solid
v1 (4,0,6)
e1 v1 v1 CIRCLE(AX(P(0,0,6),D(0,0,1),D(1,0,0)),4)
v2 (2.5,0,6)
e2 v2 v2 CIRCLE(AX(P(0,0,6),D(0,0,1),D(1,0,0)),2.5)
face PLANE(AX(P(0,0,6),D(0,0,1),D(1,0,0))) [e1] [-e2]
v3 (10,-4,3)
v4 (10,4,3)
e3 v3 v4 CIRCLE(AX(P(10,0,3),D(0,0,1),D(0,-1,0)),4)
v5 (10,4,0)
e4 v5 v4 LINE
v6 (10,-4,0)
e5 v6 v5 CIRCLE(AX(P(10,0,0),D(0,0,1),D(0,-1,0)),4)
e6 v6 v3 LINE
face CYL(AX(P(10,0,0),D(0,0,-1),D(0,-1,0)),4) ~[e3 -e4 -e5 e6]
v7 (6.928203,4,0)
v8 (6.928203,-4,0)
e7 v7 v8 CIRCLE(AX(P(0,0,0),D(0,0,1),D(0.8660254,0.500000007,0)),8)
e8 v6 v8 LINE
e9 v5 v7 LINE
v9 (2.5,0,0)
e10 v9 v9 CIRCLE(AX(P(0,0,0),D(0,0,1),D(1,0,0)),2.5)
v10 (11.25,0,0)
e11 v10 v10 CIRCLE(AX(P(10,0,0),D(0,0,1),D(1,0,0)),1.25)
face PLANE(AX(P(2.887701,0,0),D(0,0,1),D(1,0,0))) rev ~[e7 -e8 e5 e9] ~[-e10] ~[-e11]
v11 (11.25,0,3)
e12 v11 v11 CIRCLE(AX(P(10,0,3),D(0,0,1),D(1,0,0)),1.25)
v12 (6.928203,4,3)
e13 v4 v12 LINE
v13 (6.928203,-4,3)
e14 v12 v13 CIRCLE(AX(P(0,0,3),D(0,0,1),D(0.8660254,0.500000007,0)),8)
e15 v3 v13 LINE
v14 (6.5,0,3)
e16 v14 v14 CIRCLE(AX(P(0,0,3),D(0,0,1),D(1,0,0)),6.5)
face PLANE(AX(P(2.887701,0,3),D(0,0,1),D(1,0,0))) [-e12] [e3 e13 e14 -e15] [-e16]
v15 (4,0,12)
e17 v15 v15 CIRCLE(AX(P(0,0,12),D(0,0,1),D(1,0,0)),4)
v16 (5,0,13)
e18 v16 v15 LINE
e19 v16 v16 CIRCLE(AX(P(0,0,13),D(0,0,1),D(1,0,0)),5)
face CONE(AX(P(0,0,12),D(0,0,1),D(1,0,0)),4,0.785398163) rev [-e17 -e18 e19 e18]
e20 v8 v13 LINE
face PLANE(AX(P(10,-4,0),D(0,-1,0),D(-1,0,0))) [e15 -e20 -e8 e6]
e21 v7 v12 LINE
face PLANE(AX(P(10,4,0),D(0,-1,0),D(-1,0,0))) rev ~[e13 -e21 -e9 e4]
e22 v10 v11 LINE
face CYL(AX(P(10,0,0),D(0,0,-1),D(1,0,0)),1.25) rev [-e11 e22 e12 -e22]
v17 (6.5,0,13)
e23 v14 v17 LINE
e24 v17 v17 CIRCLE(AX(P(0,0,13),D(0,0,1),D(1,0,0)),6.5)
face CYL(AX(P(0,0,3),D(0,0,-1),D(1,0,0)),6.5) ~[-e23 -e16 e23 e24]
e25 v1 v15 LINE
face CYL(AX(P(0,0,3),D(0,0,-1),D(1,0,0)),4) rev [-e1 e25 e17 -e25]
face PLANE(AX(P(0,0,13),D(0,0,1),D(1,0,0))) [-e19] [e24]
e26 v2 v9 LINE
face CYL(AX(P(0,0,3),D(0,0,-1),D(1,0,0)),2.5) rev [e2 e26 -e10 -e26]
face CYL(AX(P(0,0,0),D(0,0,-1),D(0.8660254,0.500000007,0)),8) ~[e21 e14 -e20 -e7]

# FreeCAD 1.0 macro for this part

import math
import FreeCAD as App
import Part
import Sketcher

V = App.Vector


def edges_at(feature, points):
    """Names of the edges that pass closest to the given points."""
    edges = feature.Shape.Edges
    near = lambda p: min(range(len(edges)), key=lambda i: edges[i].distToShape(Part.Vertex(*p))[0])
    return sorted({f"Edge{near(p) + 1}" for p in points})

doc = App.newDocument("Part")
body = doc.addObject("PartDesign::Body", "Body")

# Sketch on XY plane
sketch1 = doc.addObject("Sketcher::SketchObject", "Sketch")
body.addObject(sketch1)
sketch1.AttachmentSupport = (doc.XY_Plane, [""])
sketch1.MapMode = "FlatFace"
sketch1.addGeometry(Part.ArcOfCircle(Part.Circle(V(0, 0, 0), V(0, 0, 1), 8), math.radians(30), math.radians(330)), False)
sketch1.addGeometry(Part.LineSegment(V(6.9, -4, 0), V(10, -4, 0)), False)
sketch1.addGeometry(Part.ArcOfCircle(Part.Circle(V(10, 0, 0), V(0, 0, 1), 4), math.radians(-90), math.radians(90)), False)
sketch1.addGeometry(Part.LineSegment(V(10, 4, 0), V(6.9, 4, 0)), False)
sketch1.addGeometry(Part.Circle(V(0, 0, 0), V(0, 0, 1), 2.5), False)
sketch1.addGeometry(Part.Circle(V(10, 0, 0), V(0, 0, 1), 1.2), False)
sketch1.addConstraint(Sketcher.Constraint("Coincident", 0, 2, 1, 1))
sketch1.addConstraint(Sketcher.Constraint("Tangent", 1, 2, 2, 1))
sketch1.addConstraint(Sketcher.Constraint("Tangent", 2, 2, 3, 1))
sketch1.addConstraint(Sketcher.Constraint("Coincident", 3, 2, 0, 1))
sketch1.addConstraint(Sketcher.Constraint("Horizontal", 1))
sketch1.addConstraint(Sketcher.Constraint("Horizontal", 3))
sketch1.addConstraint(Sketcher.Constraint("Coincident", 0, 3, -1, 1))
sketch1.addConstraint(Sketcher.Constraint("Coincident", 4, 3, -1, 1))
sketch1.addConstraint(Sketcher.Constraint("Coincident", 5, 3, 2, 3))
sketch1.addConstraint(Sketcher.Constraint("PointOnObject", 2, 3, -1))
sketch1.addConstraint(Sketcher.Constraint("Diameter", 4, 5.0))
sketch1.addConstraint(Sketcher.Constraint("Radius", 0, 8.0))
sketch1.addConstraint(Sketcher.Constraint("Radius", 2, 4.0))
sketch1.addConstraint(Sketcher.Constraint("Diameter", 5, 2.5))
sketch1.addConstraint(Sketcher.Constraint("DistanceX", -1, 1, 2, 3, 10.0))
pad1 = doc.addObject("PartDesign::Pad", "Pad")
body.addObject(pad1)
pad1.Profile = sketch1
pad1.Length = 3

# Sketch on XY plane
sketch2 = doc.addObject("Sketcher::SketchObject", "Sketch001")
body.addObject(sketch2)
sketch2.AttachmentSupport = (doc.XY_Plane, [""])
sketch2.MapMode = "FlatFace"
sketch2.AttachmentOffset = App.Placement(V(0, 0, 3), App.Rotation())
sketch2.addGeometry(Part.Circle(V(0, 0, 0), V(0, 0, 1), 6.5), False)
sketch2.addGeometry(Part.Circle(V(0, 0, 0), V(0, 0, 1), 4), False)
sketch2.addConstraint(Sketcher.Constraint("Coincident", 0, 3, -1, 1))
sketch2.addConstraint(Sketcher.Constraint("Coincident", 1, 3, -1, 1))
sketch2.addConstraint(Sketcher.Constraint("Diameter", 0, 13.0))
sketch2.addConstraint(Sketcher.Constraint("Diameter", 1, 8.0))
pad2 = doc.addObject("PartDesign::Pad", "Pad001")
body.addObject(pad2)
pad2.Profile = sketch2
pad2.Length = 10
doc.recompute()

chamfer = doc.addObject("PartDesign::Chamfer", "Chamfer")
body.addObject(chamfer)
chamfer.Base = (pad2, edges_at(pad2, [(-4, 0, 13)]))
chamfer.Size = 1

# Sketch on XY plane
sketch3 = doc.addObject("Sketcher::SketchObject", "Sketch002")
body.addObject(sketch3)
sketch3.AttachmentSupport = (doc.XY_Plane, [""])
sketch3.MapMode = "FlatFace"
sketch3.AttachmentOffset = App.Placement(V(0, 0, 3), App.Rotation())
sketch3.addGeometry(Part.Circle(V(0, 0, 0), V(0, 0, 1), 4), False)
sketch3.addGeometry(Part.Circle(V(0, 0, 0), V(0, 0, 1), 2.5), False)
sketch3.addConstraint(Sketcher.Constraint("Coincident", 0, 3, -1, 1))
sketch3.addConstraint(Sketcher.Constraint("Coincident", 1, 3, -1, 1))
sketch3.addConstraint(Sketcher.Constraint("Diameter", 0, 8.0))
sketch3.addConstraint(Sketcher.Constraint("Diameter", 1, 5.0))
pad3 = doc.addObject("PartDesign::Pad", "Pad002")
body.addObject(pad3)
pad3.Profile = sketch3
pad3.Length = 3

doc.recompute()
